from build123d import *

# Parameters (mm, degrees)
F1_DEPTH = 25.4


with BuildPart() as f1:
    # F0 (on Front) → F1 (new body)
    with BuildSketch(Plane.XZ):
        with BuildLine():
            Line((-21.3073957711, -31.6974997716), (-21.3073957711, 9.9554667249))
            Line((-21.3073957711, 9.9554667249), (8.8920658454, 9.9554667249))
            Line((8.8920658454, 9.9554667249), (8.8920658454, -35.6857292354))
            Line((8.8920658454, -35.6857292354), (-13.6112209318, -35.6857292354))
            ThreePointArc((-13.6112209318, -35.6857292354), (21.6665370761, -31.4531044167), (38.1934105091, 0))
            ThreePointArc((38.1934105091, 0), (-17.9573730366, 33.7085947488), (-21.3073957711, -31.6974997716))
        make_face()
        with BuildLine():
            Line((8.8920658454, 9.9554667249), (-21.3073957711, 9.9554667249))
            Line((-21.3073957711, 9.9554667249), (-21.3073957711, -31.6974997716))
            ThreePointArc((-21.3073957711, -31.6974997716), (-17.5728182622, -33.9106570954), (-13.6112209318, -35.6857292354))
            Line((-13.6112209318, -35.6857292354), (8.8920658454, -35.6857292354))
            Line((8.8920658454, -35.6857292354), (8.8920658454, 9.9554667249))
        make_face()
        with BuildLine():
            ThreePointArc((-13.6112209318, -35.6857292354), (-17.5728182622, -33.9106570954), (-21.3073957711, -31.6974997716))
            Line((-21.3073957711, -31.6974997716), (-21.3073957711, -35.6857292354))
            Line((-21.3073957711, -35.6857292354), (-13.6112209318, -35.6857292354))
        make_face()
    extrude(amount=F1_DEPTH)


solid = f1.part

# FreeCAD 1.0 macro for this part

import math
import FreeCAD as App
import Part
import Sketcher
from FreeCAD import Vector
Q = App.Units.Quantity

doc = App.newDocument("Part")
body = doc.addObject("PartDesign::Body", "Body")

# Sketch on XZ plane
sketch1 = doc.addObject("Sketcher::SketchObject", "Sketch")
body.addObject(sketch1)
sketch1.AttachmentSupport = (doc.XZ_Plane, [""])
sketch1.MapMode = "FlatFace"
sketch1.addGeometry([
    Part.ArcOfCircle(Part.Circle(Vector(0, 0, 0), Vector(0, 0, 1), 38.2), math.radians(-111), math.radians(236)),
    Part.LineSegment(Vector(-21.3, -31.7, 0), Vector(-21.3, -35.7, 0)),
    Part.LineSegment(Vector(-21.3, -35.7, 0), Vector(-13.6, -35.7, 0)),
], False)
sketch1.addConstraint([
    Sketcher.Constraint("Coincident", 0, 2, 1, 1),
    Sketcher.Constraint("Coincident", 1, 2, 2, 1),
    Sketcher.Constraint("Coincident", 2, 2, 0, 1),
    Sketcher.Constraint("Vertical", 1),
    Sketcher.Constraint("Horizontal", 2),
    Sketcher.Constraint("Coincident", 0, 3, -1, 1),
    Sketcher.Constraint("Radius", 0, Q("38.193411 mm")),
    Sketcher.Constraint("DistanceY", 1, 2, 1, 1, Q("3.988229 mm")),
    Sketcher.Constraint("DistanceY", 0, 2, -1, 1, Q("31.6975 mm")),
])
pad1 = doc.addObject("PartDesign::Pad", "Pad")
body.addObject(pad1)
pad1.Profile = sketch1
pad1.Length = Q("1 in")

doc.recompute()
